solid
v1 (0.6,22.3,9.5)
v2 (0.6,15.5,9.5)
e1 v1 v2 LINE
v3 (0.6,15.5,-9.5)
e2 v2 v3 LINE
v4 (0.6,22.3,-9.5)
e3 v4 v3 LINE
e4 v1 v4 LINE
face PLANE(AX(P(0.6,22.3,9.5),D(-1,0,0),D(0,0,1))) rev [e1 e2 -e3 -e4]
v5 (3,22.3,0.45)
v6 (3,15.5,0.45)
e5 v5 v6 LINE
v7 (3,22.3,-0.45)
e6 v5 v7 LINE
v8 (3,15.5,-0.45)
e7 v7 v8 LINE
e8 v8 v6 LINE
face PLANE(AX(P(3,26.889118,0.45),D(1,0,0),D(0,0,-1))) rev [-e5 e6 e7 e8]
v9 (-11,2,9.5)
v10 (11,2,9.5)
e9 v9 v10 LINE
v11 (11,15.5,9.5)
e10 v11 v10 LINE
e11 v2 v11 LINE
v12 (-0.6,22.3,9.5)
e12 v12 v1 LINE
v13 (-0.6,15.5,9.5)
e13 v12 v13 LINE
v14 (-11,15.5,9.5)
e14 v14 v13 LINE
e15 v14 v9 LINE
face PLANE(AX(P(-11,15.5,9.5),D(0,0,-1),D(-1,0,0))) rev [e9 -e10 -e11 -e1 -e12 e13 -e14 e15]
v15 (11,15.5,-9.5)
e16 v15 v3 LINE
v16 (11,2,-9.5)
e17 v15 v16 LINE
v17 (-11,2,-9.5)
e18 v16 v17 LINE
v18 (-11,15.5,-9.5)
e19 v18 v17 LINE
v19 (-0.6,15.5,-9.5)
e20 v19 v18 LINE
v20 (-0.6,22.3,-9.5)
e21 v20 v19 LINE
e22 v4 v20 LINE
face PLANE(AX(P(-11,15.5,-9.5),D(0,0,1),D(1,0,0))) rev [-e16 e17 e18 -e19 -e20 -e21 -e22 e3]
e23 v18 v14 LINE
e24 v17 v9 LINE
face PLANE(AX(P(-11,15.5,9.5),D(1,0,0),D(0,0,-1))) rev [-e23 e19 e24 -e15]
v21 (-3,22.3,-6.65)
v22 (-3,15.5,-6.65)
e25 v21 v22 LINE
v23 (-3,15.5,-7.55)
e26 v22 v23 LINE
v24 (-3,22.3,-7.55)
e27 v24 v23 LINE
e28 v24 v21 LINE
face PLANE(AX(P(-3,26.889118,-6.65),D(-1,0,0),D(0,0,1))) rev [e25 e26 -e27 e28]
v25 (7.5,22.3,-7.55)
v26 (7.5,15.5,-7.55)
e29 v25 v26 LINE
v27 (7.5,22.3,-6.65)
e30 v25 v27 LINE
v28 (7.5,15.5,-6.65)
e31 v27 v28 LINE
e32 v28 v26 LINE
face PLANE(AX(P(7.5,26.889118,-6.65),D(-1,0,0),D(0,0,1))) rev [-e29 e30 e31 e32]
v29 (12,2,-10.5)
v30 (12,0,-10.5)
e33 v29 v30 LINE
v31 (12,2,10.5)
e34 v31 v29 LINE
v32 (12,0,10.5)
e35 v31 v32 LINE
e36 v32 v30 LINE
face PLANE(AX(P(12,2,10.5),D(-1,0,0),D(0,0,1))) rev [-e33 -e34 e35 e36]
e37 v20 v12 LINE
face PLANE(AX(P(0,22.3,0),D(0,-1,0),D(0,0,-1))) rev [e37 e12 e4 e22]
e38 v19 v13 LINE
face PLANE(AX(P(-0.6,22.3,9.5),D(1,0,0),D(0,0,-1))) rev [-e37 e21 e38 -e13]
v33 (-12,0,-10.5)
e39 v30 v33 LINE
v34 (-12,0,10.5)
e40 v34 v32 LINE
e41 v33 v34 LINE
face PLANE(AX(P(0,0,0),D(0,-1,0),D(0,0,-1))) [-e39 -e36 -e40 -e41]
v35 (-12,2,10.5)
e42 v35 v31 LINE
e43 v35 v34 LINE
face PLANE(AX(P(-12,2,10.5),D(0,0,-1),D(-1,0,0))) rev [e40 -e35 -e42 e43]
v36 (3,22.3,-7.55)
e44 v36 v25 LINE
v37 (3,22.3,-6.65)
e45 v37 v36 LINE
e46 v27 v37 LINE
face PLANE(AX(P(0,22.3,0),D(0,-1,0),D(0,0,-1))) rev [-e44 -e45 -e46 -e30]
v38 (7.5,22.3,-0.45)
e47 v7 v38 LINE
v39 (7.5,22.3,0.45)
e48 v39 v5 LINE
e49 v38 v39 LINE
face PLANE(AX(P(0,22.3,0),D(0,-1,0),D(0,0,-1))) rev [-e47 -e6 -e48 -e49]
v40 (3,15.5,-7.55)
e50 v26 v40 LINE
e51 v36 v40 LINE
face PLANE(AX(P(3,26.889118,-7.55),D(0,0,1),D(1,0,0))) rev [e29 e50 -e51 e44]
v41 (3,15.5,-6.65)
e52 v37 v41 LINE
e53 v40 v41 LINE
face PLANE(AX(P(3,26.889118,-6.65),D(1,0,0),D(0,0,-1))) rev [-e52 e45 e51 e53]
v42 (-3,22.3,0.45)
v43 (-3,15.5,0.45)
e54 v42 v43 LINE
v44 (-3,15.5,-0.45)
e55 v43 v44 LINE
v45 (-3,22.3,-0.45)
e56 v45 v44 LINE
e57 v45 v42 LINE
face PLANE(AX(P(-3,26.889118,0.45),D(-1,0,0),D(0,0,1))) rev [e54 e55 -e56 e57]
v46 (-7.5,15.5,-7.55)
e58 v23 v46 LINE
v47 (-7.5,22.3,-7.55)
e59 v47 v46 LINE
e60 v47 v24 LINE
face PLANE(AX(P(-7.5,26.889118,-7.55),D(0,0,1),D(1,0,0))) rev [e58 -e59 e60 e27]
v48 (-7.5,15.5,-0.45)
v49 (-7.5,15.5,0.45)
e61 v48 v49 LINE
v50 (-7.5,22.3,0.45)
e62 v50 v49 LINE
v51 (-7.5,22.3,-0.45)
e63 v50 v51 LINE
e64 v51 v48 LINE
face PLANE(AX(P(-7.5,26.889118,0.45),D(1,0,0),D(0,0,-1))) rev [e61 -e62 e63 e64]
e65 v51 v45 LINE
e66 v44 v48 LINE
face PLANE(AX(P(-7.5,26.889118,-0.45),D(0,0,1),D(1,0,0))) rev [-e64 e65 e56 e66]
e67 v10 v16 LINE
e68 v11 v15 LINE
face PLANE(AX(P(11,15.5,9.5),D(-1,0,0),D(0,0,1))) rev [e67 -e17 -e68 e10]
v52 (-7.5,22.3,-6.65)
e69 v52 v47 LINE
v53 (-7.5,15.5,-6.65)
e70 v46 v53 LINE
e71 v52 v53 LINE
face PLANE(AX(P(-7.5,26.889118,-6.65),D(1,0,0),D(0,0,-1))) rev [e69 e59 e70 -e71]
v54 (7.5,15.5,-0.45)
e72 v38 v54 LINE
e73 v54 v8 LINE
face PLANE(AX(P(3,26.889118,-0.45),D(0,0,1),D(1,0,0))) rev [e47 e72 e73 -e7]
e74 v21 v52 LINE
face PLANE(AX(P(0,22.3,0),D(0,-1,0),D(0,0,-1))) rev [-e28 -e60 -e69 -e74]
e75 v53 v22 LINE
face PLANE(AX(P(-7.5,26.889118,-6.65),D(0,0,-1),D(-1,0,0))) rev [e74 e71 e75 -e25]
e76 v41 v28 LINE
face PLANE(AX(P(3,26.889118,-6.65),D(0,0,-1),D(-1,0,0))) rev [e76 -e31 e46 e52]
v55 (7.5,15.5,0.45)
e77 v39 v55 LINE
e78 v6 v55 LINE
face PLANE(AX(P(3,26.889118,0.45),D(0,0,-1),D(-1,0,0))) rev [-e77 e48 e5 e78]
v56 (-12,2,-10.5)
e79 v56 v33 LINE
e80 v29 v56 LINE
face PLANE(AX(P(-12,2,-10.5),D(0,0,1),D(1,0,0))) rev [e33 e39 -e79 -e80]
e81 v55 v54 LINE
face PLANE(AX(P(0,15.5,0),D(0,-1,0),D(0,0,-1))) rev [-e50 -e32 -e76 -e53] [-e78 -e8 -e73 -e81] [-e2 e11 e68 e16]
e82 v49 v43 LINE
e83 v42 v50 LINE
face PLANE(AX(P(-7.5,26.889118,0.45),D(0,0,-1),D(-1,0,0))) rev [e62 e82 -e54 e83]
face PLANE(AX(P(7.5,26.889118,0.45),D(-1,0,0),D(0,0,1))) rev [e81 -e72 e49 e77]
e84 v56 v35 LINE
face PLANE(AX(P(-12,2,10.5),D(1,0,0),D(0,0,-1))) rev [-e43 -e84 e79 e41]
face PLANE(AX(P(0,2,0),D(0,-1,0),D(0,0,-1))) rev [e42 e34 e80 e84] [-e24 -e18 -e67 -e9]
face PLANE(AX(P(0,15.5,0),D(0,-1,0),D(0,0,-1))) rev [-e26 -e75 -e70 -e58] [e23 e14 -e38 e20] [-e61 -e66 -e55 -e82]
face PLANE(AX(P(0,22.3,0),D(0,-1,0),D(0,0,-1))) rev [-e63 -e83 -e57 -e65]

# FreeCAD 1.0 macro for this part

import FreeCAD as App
import Part
import Sketcher
from FreeCAD import Vector
Q = App.Units.Quantity

doc = App.newDocument("Part")
params = doc.addObject("Spreadsheet::Sheet", "Params")
for row, (alias, value) in enumerate([
    ("sketch1_width", "24 mm"),
    ("sketch1_height", "21 mm"),
    ("pad1_length", "2 mm"),
    ("sketch2_width", "22 mm"),
    ("sketch2_height", "19 mm"),
    ("pad2_length", "13.5 mm"),
    ("sketch3_height", "19 mm"),
    ("sketch3_width", "1.2 mm"),
    ("pad3_length", "6.8 mm"),
    ("sketch4_width", "4.5 mm"),
    ("sketch4_height", "0.9 mm"),
    ("pad4_length", "6.8 mm"),
], start=1):
    params.set(f"A{row}", alias)
    params.set(f"B{row}", "=" + value)
    params.setAlias(f"B{row}", alias)

body = doc.addObject("PartDesign::Body", "Body")

sketch1 = doc.addObject("Sketcher::SketchObject", "Sketch")
body.addObject(sketch1)
sketch1.AttachmentSupport = (doc.XZ_Plane, [""])
sketch1.MapMode = "FlatFace"
sketch1.addGeometry([
    Part.LineSegment(Vector(-12, -10, 0), Vector(-12, 10, 0)),
    Part.LineSegment(Vector(-12, 10, 0), Vector(12, 10, 0)),
    Part.LineSegment(Vector(12, 10, 0), Vector(12, -10, 0)),
    Part.LineSegment(Vector(12, -10, 0), Vector(-12, -10, 0)),
], False)
sketch1.addConstraint([
    Sketcher.Constraint("Coincident", 0, 2, 1, 1),
    Sketcher.Constraint("Coincident", 1, 2, 2, 1),
    Sketcher.Constraint("Coincident", 2, 2, 3, 1),
    Sketcher.Constraint("Coincident", 3, 2, 0, 1),
    Sketcher.Constraint("Vertical", 0),
    Sketcher.Constraint("Horizontal", 1),
    Sketcher.Constraint("Vertical", 2),
    Sketcher.Constraint("Horizontal", 3),
    Sketcher.Constraint("Symmetric", 0, 2, 2, 2, -1, 1),
    Sketcher.Constraint("DistanceX", 1, 1, 1, 2, Q("24 mm")),
    Sketcher.Constraint("DistanceY", 0, 1, 0, 2, Q("21 mm")),
])
sketch1.setExpression("Constraints[9]", "Params.sketch1_width")
sketch1.setExpression("Constraints[10]", "Params.sketch1_height")
pad1 = doc.addObject("PartDesign::Pad", "Pad")
body.addObject(pad1)
pad1.Profile = sketch1
pad1.setExpression("Length", "Params.pad1_length")
pad1.Reversed = True

sketch2 = doc.addObject("Sketcher::SketchObject", "Sketch001")
body.addObject(sketch2)
sketch2.AttachmentSupport = (doc.XZ_Plane, [""])
sketch2.MapMode = "FlatFace"
sketch2.AttachmentOffset = App.Placement(Vector(0, 0, -2), App.Rotation())
sketch2.addGeometry([
    Part.LineSegment(Vector(-11, -10, 0), Vector(-11, 10, 0)),
    Part.LineSegment(Vector(-11, 10, 0), Vector(11, 10, 0)),
    Part.LineSegment(Vector(11, 10, 0), Vector(11, -10, 0)),
    Part.LineSegment(Vector(11, -10, 0), Vector(-11, -10, 0)),
], False)
sketch2.addConstraint([
    Sketcher.Constraint("Coincident", 0, 2, 1, 1),
    Sketcher.Constraint("Coincident", 1, 2, 2, 1),
    Sketcher.Constraint("Coincident", 2, 2, 3, 1),
    Sketcher.Constraint("Coincident", 3, 2, 0, 1),
    Sketcher.Constraint("Vertical", 0),
    Sketcher.Constraint("Horizontal", 1),
    Sketcher.Constraint("Vertical", 2),
    Sketcher.Constraint("Horizontal", 3),
    Sketcher.Constraint("Symmetric", 0, 2, 2, 2, -1, 1),
    Sketcher.Constraint("DistanceX", 1, 1, 1, 2, Q("22 mm")),
    Sketcher.Constraint("DistanceY", 0, 1, 0, 2, Q("19 mm")),
])
sketch2.setExpression("Constraints[9]", "Params.sketch2_width")
sketch2.setExpression("Constraints[10]", "Params.sketch2_height")
pad2 = doc.addObject("PartDesign::Pad", "Pad001")
body.addObject(pad2)
pad2.Profile = sketch2
pad2.setExpression("Length", "Params.pad2_length")
pad2.Reversed = True

sketch3 = doc.addObject("Sketcher::SketchObject", "Sketch002")
body.addObject(sketch3)
sketch3.AttachmentSupport = (doc.XZ_Plane, [""])
sketch3.MapMode = "FlatFace"
sketch3.AttachmentOffset = App.Placement(Vector(0, 0, -15.5), App.Rotation())
sketch3.addGeometry([
    Part.LineSegment(Vector(-0.6, -9.5, 0), Vector(-0.6, 9.5, 0)),
    Part.LineSegment(Vector(-0.6, 9.5, 0), Vector(0.6, 9.5, 0)),
    Part.LineSegment(Vector(0.6, 9.5, 0), Vector(0.6, -9.5, 0)),
    Part.LineSegment(Vector(0.6, -9.5, 0), Vector(-0.6, -9.5, 0)),
], False)
sketch3.addConstraint([
    Sketcher.Constraint("Coincident", 0, 2, 1, 1),
    Sketcher.Constraint("Coincident", 1, 2, 2, 1),
    Sketcher.Constraint("Coincident", 2, 2, 3, 1),
    Sketcher.Constraint("Coincident", 3, 2, 0, 1),
    Sketcher.Constraint("Vertical", 0),
    Sketcher.Constraint("Horizontal", 1),
    Sketcher.Constraint("Vertical", 2),
    Sketcher.Constraint("Horizontal", 3),
    Sketcher.Constraint("Symmetric", 0, 2, 2, 2, -1, 1),
    Sketcher.Constraint("DistanceY", 0, 1, 0, 2, Q("19 mm")),
    Sketcher.Constraint("DistanceX", 1, 1, 1, 2, Q("1.2 mm")),
])
sketch3.setExpression("Constraints[9]", "Params.sketch3_height")
sketch3.setExpression("Constraints[10]", "Params.sketch3_width")
pad3 = doc.addObject("PartDesign::Pad", "Pad002")
body.addObject(pad3)
pad3.Profile = sketch3
pad3.setExpression("Length", "Params.pad3_length")
pad3.Reversed = True

sketch4 = doc.addObject("Sketcher::SketchObject", "Sketch003")
body.addObject(sketch4)
sketch4.AttachmentSupport = (doc.XZ_Plane, [""])
sketch4.MapMode = "FlatFace"
sketch4.AttachmentOffset = App.Placement(Vector(0, 0, -15.5), App.Rotation())
sketch4.addGeometry([
    Part.LineSegment(Vector(-7.5, -7.5, 0), Vector(-7.5, -6.7, 0)),
    Part.LineSegment(Vector(-7.5, -6.7, 0), Vector(-3, -6.7, 0)),
    Part.LineSegment(Vector(-3, -6.7, 0), Vector(-3, -7.5, 0)),
    Part.LineSegment(Vector(-3, -7.5, 0), Vector(-7.5, -7.5, 0)),
    Part.LineSegment(Vector(-7.5, -0.5, 0), Vector(-7.5, 0.5, 0)),
    Part.LineSegment(Vector(-7.5, 0.5, 0), Vector(-3, 0.5, 0)),
    Part.LineSegment(Vector(-3, 0.5, 0), Vector(-3, -0.5, 0)),
    Part.LineSegment(Vector(-3, -0.5, 0), Vector(-7.5, -0.5, 0)),
    Part.LineSegment(Vector(3, -7.5, 0), Vector(3, -6.7, 0)),
    Part.LineSegment(Vector(3, -6.7, 0), Vector(7.5, -6.7, 0)),
    Part.LineSegment(Vector(7.5, -6.7, 0), Vector(7.5, -7.5, 0)),
    Part.LineSegment(Vector(7.5, -7.5, 0), Vector(3, -7.5, 0)),
    Part.LineSegment(Vector(3, -0.5, 0), Vector(3, 0.5, 0)),
    Part.LineSegment(Vector(3, 0.5, 0), Vector(7.5, 0.5, 0)),
    Part.LineSegment(Vector(7.5, 0.5, 0), Vector(7.5, -0.5, 0)),
    Part.LineSegment(Vector(7.5, -0.5, 0), Vector(3, -0.5, 0)),
], False)
sketch4.addConstraint([
    Sketcher.Constraint("Coincident", 0, 2, 1, 1),
    Sketcher.Constraint("Coincident", 1, 2, 2, 1),
    Sketcher.Constraint("Coincident", 2, 2, 3, 1),
    Sketcher.Constraint("Coincident", 3, 2, 0, 1),
    Sketcher.Constraint("Coincident", 4, 2, 5, 1),
    Sketcher.Constraint("Coincident", 5, 2, 6, 1),
    Sketcher.Constraint("Coincident", 6, 2, 7, 1),
    Sketcher.Constraint("Coincident", 7, 2, 4, 1),
    Sketcher.Constraint("Coincident", 8, 2, 9, 1),
    Sketcher.Constraint("Coincident", 9, 2, 10, 1),
    Sketcher.Constraint("Coincident", 10, 2, 11, 1),
    Sketcher.Constraint("Coincident", 11, 2, 8, 1),
    Sketcher.Constraint("Coincident", 12, 2, 13, 1),
    Sketcher.Constraint("Coincident", 13, 2, 14, 1),
    Sketcher.Constraint("Coincident", 14, 2, 15, 1),
    Sketcher.Constraint("Coincident", 15, 2, 12, 1),
    Sketcher.Constraint("Vertical", 0),
    Sketcher.Constraint("Horizontal", 1),
    Sketcher.Constraint("Vertical", 2),
    Sketcher.Constraint("Horizontal", 3),
    Sketcher.Constraint("Vertical", 4),
    Sketcher.Constraint("Horizontal", 5),
    Sketcher.Constraint("Vertical", 6),
    Sketcher.Constraint("Horizontal", 7),
    Sketcher.Constraint("Vertical", 8),
    Sketcher.Constraint("Horizontal", 9),
    Sketcher.Constraint("Vertical", 10),
    Sketcher.Constraint("Horizontal", 11),
    Sketcher.Constraint("Vertical", 12),
    Sketcher.Constraint("Horizontal", 13),
    Sketcher.Constraint("Vertical", 14),
    Sketcher.Constraint("Horizontal", 15),
    Sketcher.Constraint("Symmetric", 6, 2, 12, 2, -1, 1),
    Sketcher.Constraint("Symmetric", 4, 2, 14, 2, -1, 1),
    Sketcher.Constraint("Symmetric", 1, 2, 8, 2, -2),
    Sketcher.Constraint("Symmetric", 3, 2, 10, 2, -2),
    Sketcher.Constraint("Horizontal", 5, 2, 12, 2),
    Sketcher.Constraint("Vertical", 3, 2, 4, 2),
    Sketcher.Constraint("Vertical", 2, 2, 5, 2),
    Sketcher.Constraint("Equal", 2, 4),
    Sketcher.Constraint("DistanceX", 1, 1, 1, 2, Q("4.5 mm")),
    Sketcher.Constraint("DistanceY", 0, 1, 0, 2, Q("0.9 mm")),
    Sketcher.Constraint("DistanceX", 1, 2, -1, 1, Q("3 mm")),
    Sketcher.Constraint("DistanceY", 3, 2, 4, 2, Q("8 mm")),
])
sketch4.setExpression("Constraints[40]", "Params.sketch4_width")
sketch4.setExpression("Constraints[41]", "Params.sketch4_height")
pad4 = doc.addObject("PartDesign::Pad", "Pad003")
body.addObject(pad4)
pad4.Profile = sketch4
pad4.setExpression("Length", "Params.pad4_length")
pad4.Reversed = True

doc.recompute()
